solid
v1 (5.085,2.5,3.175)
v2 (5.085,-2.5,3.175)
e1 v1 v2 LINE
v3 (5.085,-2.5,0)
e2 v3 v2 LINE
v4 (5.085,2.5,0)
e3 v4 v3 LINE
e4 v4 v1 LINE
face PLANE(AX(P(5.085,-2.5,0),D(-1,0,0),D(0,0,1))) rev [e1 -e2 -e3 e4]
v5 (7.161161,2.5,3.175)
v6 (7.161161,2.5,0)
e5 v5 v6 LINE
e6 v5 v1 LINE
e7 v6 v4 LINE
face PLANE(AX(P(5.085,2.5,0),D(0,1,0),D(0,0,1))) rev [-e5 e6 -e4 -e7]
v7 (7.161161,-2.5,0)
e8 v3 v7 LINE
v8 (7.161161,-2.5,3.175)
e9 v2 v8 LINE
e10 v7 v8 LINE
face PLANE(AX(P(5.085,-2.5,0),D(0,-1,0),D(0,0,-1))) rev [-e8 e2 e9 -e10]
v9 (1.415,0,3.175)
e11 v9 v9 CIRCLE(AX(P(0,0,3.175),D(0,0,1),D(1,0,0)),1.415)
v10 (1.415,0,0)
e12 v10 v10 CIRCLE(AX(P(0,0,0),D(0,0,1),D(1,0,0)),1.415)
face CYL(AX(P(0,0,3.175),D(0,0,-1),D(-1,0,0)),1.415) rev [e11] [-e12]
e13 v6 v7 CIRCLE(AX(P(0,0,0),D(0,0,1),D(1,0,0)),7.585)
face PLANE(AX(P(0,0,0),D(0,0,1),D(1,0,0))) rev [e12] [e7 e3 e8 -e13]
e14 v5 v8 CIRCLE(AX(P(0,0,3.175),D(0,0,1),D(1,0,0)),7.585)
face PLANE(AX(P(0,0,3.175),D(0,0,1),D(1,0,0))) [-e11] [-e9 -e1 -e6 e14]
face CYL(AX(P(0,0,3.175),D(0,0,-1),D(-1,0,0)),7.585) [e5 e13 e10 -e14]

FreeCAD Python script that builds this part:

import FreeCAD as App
import Part
import Sketcher
from FreeCAD import Vector

doc = App.newDocument("Part")
body = doc.addObject("PartDesign::Body", "Body")

sketch1 = body.newObject("Sketcher::SketchObject", "Sketch")
sketch1.AttachmentSupport = (doc.getObject("XY_Plane"), [""])
sketch1.MapMode = "FlatFace"
sketch1.addGeometry(Part.Circle(Vector(0, 0, 0), Vector(0, 0, 1), 7.6), False)
sketch1.addGeometry(Part.Circle(Vector(0, 0, 0), Vector(0, 0, 1), 1.4), False)
sketch1.addConstraint(Sketcher.Constraint("Coincident", 0, 3, -1, 1))
sketch1.addConstraint(Sketcher.Constraint("Coincident", 1, 3, -1, 1))
sketch1.addConstraint(Sketcher.Constraint("Diameter", 0, 15.17))
sketch1.addConstraint(Sketcher.Constraint("Diameter", 1, 2.83))
pad1 = body.newObject("PartDesign::Pad", "Pad")
pad1.Profile = sketch1
pad1.Length = 3.175

sketch2 = body.newObject("Sketcher::SketchObject", "Sketch001")
sketch2.AttachmentSupport = (doc.getObject("XY_Plane"), [""])
sketch2.MapMode = "FlatFace"
sketch2.AttachmentOffset = App.Placement(Vector(0, 0, 3.175), App.Rotation())
sketch2.addGeometry(Part.LineSegment(Vector(5.1, 2.5, 0), Vector(5.1, -2.5, 0)), False)
sketch2.addGeometry(Part.LineSegment(Vector(5.1, -2.5, 0), Vector(7.6, -2.5, 0)), False)
sketch2.addGeometry(Part.LineSegment(Vector(7.6, -2.5, 0), Vector(7.6, 2.5, 0)), False)
sketch2.addGeometry(Part.LineSegment(Vector(7.6, 2.5, 0), Vector(5.1, 2.5, 0)), False)
sketch2.addConstraint(Sketcher.Constraint("Coincident", 0, 2, 1, 1))
sketch2.addConstraint(Sketcher.Constraint("Coincident", 1, 2, 2, 1))
sketch2.addConstraint(Sketcher.Constraint("Coincident", 2, 2, 3, 1))
sketch2.addConstraint(Sketcher.Constraint("Coincident", 3, 2, 0, 1))
sketch2.addConstraint(Sketcher.Constraint("Vertical", 0))
sketch2.addConstraint(Sketcher.Constraint("Horizontal", 1))
sketch2.addConstraint(Sketcher.Constraint("Vertical", 2))
sketch2.addConstraint(Sketcher.Constraint("Horizontal", 3))
sketch2.addConstraint(Sketcher.Constraint("DistanceY", 0, 2, 0, 1, 5.0))
sketch2.addConstraint(Sketcher.Constraint("DistanceX", 1, 1, 1, 2, 2.5))
sketch2.addConstraint(Sketcher.Constraint("DistanceY", 0, 2, -1, 1, 2.5))
sketch2.addConstraint(Sketcher.Constraint("DistanceX", -1, 1, 0, 2, 5.085))
pocket1 = body.newObject("PartDesign::Pocket", "Pocket")
pocket1.Profile = sketch2
pocket1.Length = 3.175

doc.recompute()
